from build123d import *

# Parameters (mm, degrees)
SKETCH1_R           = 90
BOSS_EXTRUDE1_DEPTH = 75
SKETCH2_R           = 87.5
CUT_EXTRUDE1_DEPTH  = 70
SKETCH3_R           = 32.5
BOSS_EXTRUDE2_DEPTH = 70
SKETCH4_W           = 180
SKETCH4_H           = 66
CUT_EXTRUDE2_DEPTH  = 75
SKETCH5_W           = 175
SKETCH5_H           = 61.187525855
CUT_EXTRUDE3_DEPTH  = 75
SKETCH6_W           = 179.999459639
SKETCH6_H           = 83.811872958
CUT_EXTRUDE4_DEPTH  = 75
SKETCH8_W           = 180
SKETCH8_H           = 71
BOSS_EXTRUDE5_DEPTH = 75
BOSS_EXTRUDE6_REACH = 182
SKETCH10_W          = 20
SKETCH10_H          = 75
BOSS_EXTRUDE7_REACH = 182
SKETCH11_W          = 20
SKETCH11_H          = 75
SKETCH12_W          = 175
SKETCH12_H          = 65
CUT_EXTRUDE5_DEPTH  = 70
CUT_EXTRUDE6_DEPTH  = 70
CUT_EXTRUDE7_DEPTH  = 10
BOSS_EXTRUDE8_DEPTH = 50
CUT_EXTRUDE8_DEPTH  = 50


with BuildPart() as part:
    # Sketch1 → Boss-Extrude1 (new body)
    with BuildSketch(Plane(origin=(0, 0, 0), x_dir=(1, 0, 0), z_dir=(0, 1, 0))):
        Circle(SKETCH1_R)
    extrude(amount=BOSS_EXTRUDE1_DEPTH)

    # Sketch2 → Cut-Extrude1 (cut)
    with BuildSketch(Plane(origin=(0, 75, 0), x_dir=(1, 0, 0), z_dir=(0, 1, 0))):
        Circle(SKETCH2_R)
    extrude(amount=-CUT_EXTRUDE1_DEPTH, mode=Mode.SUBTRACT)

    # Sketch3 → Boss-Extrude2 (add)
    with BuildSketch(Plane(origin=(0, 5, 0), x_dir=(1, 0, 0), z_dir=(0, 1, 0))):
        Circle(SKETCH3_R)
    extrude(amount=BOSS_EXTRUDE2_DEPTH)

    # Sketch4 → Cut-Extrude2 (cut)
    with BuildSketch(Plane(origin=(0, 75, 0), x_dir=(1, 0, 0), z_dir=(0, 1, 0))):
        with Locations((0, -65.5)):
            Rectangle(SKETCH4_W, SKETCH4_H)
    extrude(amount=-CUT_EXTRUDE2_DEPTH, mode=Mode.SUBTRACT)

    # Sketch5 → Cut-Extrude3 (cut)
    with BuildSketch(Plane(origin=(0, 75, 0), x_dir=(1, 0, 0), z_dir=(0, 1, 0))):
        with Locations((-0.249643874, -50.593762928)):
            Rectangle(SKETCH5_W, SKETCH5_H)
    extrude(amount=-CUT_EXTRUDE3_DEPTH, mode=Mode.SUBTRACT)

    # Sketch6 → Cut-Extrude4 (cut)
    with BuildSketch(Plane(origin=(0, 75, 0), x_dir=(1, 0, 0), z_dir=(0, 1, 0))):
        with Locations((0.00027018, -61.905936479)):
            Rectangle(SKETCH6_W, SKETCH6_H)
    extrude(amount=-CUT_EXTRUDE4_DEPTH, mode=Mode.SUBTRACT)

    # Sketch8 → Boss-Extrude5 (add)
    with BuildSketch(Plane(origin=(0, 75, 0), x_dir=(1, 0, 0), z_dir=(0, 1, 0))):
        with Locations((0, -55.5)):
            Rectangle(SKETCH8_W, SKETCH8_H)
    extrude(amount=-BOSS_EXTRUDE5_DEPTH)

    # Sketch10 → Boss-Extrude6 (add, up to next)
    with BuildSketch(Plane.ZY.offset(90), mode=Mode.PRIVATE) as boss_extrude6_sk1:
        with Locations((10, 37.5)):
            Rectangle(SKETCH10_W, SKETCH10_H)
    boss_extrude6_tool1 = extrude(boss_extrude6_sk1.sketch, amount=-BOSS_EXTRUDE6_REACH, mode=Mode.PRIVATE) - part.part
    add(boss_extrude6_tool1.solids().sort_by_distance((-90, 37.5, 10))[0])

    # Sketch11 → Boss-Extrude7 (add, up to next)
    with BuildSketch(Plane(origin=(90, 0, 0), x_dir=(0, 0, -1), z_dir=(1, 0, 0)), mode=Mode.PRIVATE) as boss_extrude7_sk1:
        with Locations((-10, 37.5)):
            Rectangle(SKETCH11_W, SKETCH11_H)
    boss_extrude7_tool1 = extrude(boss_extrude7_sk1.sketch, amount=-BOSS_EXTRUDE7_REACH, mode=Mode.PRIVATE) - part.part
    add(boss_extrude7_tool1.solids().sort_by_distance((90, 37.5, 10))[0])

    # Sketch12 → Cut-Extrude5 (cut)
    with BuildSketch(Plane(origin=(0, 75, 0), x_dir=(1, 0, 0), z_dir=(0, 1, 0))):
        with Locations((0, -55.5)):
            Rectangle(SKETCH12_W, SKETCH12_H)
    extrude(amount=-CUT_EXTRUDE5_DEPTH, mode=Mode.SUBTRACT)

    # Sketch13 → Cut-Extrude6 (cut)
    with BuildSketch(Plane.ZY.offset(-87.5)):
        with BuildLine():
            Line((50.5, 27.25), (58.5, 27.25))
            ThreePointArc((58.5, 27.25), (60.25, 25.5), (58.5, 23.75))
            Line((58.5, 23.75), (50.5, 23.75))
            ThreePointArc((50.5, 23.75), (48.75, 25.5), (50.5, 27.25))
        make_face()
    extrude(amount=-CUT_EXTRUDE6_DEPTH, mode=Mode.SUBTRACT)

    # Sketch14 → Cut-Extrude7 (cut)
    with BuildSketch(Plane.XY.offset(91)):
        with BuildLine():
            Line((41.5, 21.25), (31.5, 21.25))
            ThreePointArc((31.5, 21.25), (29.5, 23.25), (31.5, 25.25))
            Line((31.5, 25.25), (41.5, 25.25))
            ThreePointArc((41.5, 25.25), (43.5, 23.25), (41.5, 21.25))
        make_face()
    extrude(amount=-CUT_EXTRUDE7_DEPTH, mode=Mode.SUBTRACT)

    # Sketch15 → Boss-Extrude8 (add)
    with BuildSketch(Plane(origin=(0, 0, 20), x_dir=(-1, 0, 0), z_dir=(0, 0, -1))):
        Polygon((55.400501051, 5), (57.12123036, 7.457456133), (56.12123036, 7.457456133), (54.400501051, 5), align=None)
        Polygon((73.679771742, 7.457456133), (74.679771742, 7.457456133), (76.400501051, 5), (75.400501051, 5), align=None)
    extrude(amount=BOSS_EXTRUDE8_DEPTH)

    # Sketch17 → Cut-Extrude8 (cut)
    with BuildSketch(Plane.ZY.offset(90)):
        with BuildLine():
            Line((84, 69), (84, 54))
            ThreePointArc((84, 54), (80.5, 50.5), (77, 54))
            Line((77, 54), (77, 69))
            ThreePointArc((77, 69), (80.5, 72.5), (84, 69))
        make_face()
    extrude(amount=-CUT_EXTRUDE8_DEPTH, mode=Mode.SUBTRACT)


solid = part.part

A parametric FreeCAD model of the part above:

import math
import FreeCAD as App
import Part
import Sketcher
from FreeCAD import Vector
Q = App.Units.Quantity

doc = App.newDocument("Part")
body = doc.addObject("PartDesign::Body", "Body")

# Sketch on XZ plane
sketch1 = body.newObject("Sketcher::SketchObject", "Sketch")
sketch1.AttachmentSupport = (doc.getObject("XZ_Plane"), [""])
sketch1.MapMode = "FlatFace"
sketch1.addGeometry(Part.Circle(Vector(0, 0, 0), Vector(0, 0, 1), 90), False)
sketch1.addConstraint(Sketcher.Constraint("Coincident", 0, 3, -1, 1))
sketch1.addConstraint(Sketcher.Constraint("Diameter", 0, Q("180 mm")))
pad1 = body.newObject("PartDesign::Pad", "Pad")
pad1.Profile = sketch1
pad1.Length = 75
pad1.Reversed = True

# Sketch on XZ plane
sketch2 = body.newObject("Sketcher::SketchObject", "Sketch001")
sketch2.AttachmentSupport = (doc.getObject("XZ_Plane"), [""])
sketch2.MapMode = "FlatFace"
sketch2.AttachmentOffset = App.Placement(Vector(0, 0, -75), App.Rotation())
sketch2.addGeometry(Part.Circle(Vector(0, 0, 0), Vector(0, 0, 1), 87.5), False)
sketch2.addConstraint(Sketcher.Constraint("Coincident", 0, 3, -1, 1))
sketch2.addConstraint(Sketcher.Constraint("Diameter", 0, Q("175 mm")))
pocket1 = body.newObject("PartDesign::Pocket", "Pocket")
pocket1.Profile = sketch2
pocket1.Length = 70
pocket1.Reversed = True

# Sketch on XZ plane
sketch3 = body.newObject("Sketcher::SketchObject", "Sketch002")
sketch3.AttachmentSupport = (doc.getObject("XZ_Plane"), [""])
sketch3.MapMode = "FlatFace"
sketch3.AttachmentOffset = App.Placement(Vector(0, 0, -5), App.Rotation())
sketch3.addGeometry(Part.Circle(Vector(0, 0, 0), Vector(0, 0, 1), 32.5), False)
sketch3.addConstraint(Sketcher.Constraint("Coincident", 0, 3, -1, 1))
sketch3.addConstraint(Sketcher.Constraint("Diameter", 0, Q("65 mm")))
pad2 = body.newObject("PartDesign::Pad", "Pad001")
pad2.Profile = sketch3
pad2.Length = 70
pad2.Reversed = True

# Sketch on XZ plane
sketch4 = body.newObject("Sketcher::SketchObject", "Sketch003")
sketch4.AttachmentSupport = (doc.getObject("XZ_Plane"), [""])
sketch4.MapMode = "FlatFace"
sketch4.AttachmentOffset = App.Placement(Vector(0, 0, -75), App.Rotation())
sketch4.addGeometry(Part.LineSegment(Vector(-90, 32.5, 0), Vector(-90, 98.5, 0)), False)
sketch4.addGeometry(Part.LineSegment(Vector(-90, 98.5, 0), Vector(90, 98.5, 0)), False)
sketch4.addGeometry(Part.LineSegment(Vector(90, 98.5, 0), Vector(90, 32.5, 0)), False)
sketch4.addGeometry(Part.LineSegment(Vector(90, 32.5, 0), Vector(-90, 32.5, 0)), False)
sketch4.addConstraint(Sketcher.Constraint("Coincident", 0, 2, 1, 1))
sketch4.addConstraint(Sketcher.Constraint("Coincident", 1, 2, 2, 1))
sketch4.addConstraint(Sketcher.Constraint("Coincident", 2, 2, 3, 1))
sketch4.addConstraint(Sketcher.Constraint("Coincident", 3, 2, 0, 1))
sketch4.addConstraint(Sketcher.Constraint("Vertical", 0))
sketch4.addConstraint(Sketcher.Constraint("Horizontal", 1))
sketch4.addConstraint(Sketcher.Constraint("Vertical", 2))
sketch4.addConstraint(Sketcher.Constraint("Horizontal", 3))
sketch4.addConstraint(Sketcher.Constraint("DistanceX", 1, 1, 1, 2, Q("180 mm")))
sketch4.addConstraint(Sketcher.Constraint("DistanceY", 0, 1, 0, 2, Q("66 mm")))
sketch4.addConstraint(Sketcher.Constraint("DistanceX", 0, 2, -1, 1, Q("90 mm")))
sketch4.addConstraint(Sketcher.Constraint("DistanceY", -1, 1, 0, 2, Q("98.5 mm")))
pocket2 = body.newObject("PartDesign::Pocket", "Pocket001")
pocket2.Profile = sketch4
pocket2.Length = 75
pocket2.Reversed = True

# Sketch on XZ plane
sketch5 = body.newObject("Sketcher::SketchObject", "Sketch004")
sketch5.AttachmentSupport = (doc.getObject("XZ_Plane"), [""])
sketch5.MapMode = "FlatFace"
sketch5.AttachmentOffset = App.Placement(Vector(0, 0, -75), App.Rotation())
sketch5.addGeometry(Part.LineSegment(Vector(-87.749644, 20, 0), Vector(-87.749644, 81.187526, 0)), False)
sketch5.addGeometry(Part.LineSegment(Vector(-87.749644, 81.187526, 0), Vector(87.250356, 81.187526, 0)), False)
sketch5.addGeometry(Part.LineSegment(Vector(87.250356, 81.187526, 0), Vector(87.250356, 20, 0)), False)
sketch5.addGeometry(Part.LineSegment(Vector(87.250356, 20, 0), Vector(-87.749644, 20, 0)), False)
sketch5.addConstraint(Sketcher.Constraint("Coincident", 0, 2, 1, 1))
sketch5.addConstraint(Sketcher.Constraint("Coincident", 1, 2, 2, 1))
sketch5.addConstraint(Sketcher.Constraint("Coincident", 2, 2, 3, 1))
sketch5.addConstraint(Sketcher.Constraint("Coincident", 3, 2, 0, 1))
sketch5.addConstraint(Sketcher.Constraint("Vertical", 0))
sketch5.addConstraint(Sketcher.Constraint("Horizontal", 1))
sketch5.addConstraint(Sketcher.Constraint("Vertical", 2))
sketch5.addConstraint(Sketcher.Constraint("Horizontal", 3))
sketch5.addConstraint(Sketcher.Constraint("DistanceX", 1, 1, 1, 2, Q("175 mm")))
sketch5.addConstraint(Sketcher.Constraint("DistanceY", -1, 1, 2, 2, Q("20 mm")))
sketch5.addConstraint(Sketcher.Constraint("DistanceY", 0, 1, 0, 2, Q("61.187526 mm")))
sketch5.addConstraint(Sketcher.Constraint("DistanceX", 0, 2, -1, 1, Q("87.749644 mm")))
pocket3 = body.newObject("PartDesign::Pocket", "Pocket002")
pocket3.Profile = sketch5
pocket3.Length = 75
pocket3.Reversed = True

# Sketch on XZ plane
sketch6 = body.newObject("Sketcher::SketchObject", "Sketch005")
sketch6.AttachmentSupport = (doc.getObject("XZ_Plane"), [""])
sketch6.MapMode = "FlatFace"
sketch6.AttachmentOffset = App.Placement(Vector(0, 0, -75), App.Rotation())
sketch6.addGeometry(Part.LineSegment(Vector(-89.99946, 20, 0), Vector(-89.99946, 103.811873, 0)), False)
sketch6.addGeometry(Part.LineSegment(Vector(-89.99946, 103.811873, 0), Vector(90, 103.811873, 0)), False)
sketch6.addGeometry(Part.LineSegment(Vector(90, 103.811873, 0), Vector(90, 20, 0)), False)
sketch6.addGeometry(Part.LineSegment(Vector(90, 20, 0), Vector(-89.99946, 20, 0)), False)
sketch6.addConstraint(Sketcher.Constraint("Coincident", 0, 2, 1, 1))
sketch6.addConstraint(Sketcher.Constraint("Coincident", 1, 2, 2, 1))
sketch6.addConstraint(Sketcher.Constraint("Coincident", 2, 2, 3, 1))
sketch6.addConstraint(Sketcher.Constraint("Coincident", 3, 2, 0, 1))
sketch6.addConstraint(Sketcher.Constraint("Vertical", 0))
sketch6.addConstraint(Sketcher.Constraint("Horizontal", 1))
sketch6.addConstraint(Sketcher.Constraint("Vertical", 2))
sketch6.addConstraint(Sketcher.Constraint("Horizontal", 3))
sketch6.addConstraint(Sketcher.Constraint("DistanceX", -1, 1, 1, 2, Q("90 mm")))
sketch6.addConstraint(Sketcher.Constraint("DistanceY", -1, 1, 2, 2, Q("20 mm")))
sketch6.addConstraint(Sketcher.Constraint("DistanceX", 1, 1, 1, 2, Q("179.99946 mm")))
sketch6.addConstraint(Sketcher.Constraint("DistanceY", 0, 1, 0, 2, Q("83.811873 mm")))
pocket4 = body.newObject("PartDesign::Pocket", "Pocket003")
pocket4.Profile = sketch6
pocket4.Length = 75
pocket4.Reversed = True

# Sketch on XZ plane
sketch7 = body.newObject("Sketcher::SketchObject", "Sketch006")
sketch7.AttachmentSupport = (doc.getObject("XZ_Plane"), [""])
sketch7.MapMode = "FlatFace"
sketch7.AttachmentOffset = App.Placement(Vector(0, 0, -75), App.Rotation())
sketch7.addGeometry(Part.LineSegment(Vector(-90, 20, 0), Vector(-90, 91, 0)), False)
sketch7.addGeometry(Part.LineSegment(Vector(-90, 91, 0), Vector(90, 91, 0)), False)
sketch7.addGeometry(Part.LineSegment(Vector(90, 91, 0), Vector(90, 20, 0)), False)
sketch7.addGeometry(Part.LineSegment(Vector(90, 20, 0), Vector(-90, 20, 0)), False)
sketch7.addConstraint(Sketcher.Constraint("Coincident", 0, 2, 1, 1))
sketch7.addConstraint(Sketcher.Constraint("Coincident", 1, 2, 2, 1))
sketch7.addConstraint(Sketcher.Constraint("Coincident", 2, 2, 3, 1))
sketch7.addConstraint(Sketcher.Constraint("Coincident", 3, 2, 0, 1))
sketch7.addConstraint(Sketcher.Constraint("Vertical", 0))
sketch7.addConstraint(Sketcher.Constraint("Horizontal", 1))
sketch7.addConstraint(Sketcher.Constraint("Vertical", 2))
sketch7.addConstraint(Sketcher.Constraint("Horizontal", 3))
sketch7.addConstraint(Sketcher.Constraint("DistanceX", 1, 1, 1, 2, Q("180 mm")))
sketch7.addConstraint(Sketcher.Constraint("DistanceY", 0, 1, 0, 2, Q("71 mm")))
sketch7.addConstraint(Sketcher.Constraint("DistanceX", 0, 2, -1, 1, Q("90 mm")))
sketch7.addConstraint(Sketcher.Constraint("DistanceY", -1, 1, 0, 2, Q("91 mm")))
pad3 = body.newObject("PartDesign::Pad", "Pad002")
pad3.Profile = sketch7
pad3.Length = 75

# Sketch on YZ plane
sketch8 = body.newObject("Sketcher::SketchObject", "Sketch007")
sketch8.AttachmentSupport = (doc.getObject("YZ_Plane"), [""])
sketch8.MapMode = "FlatFace"
sketch8.AttachmentOffset = App.Placement(Vector(0, 0, -90), App.Rotation())
sketch8.addGeometry(Part.LineSegment(Vector(75, 0, 0), Vector(0, 0, 0)), False)
sketch8.addGeometry(Part.LineSegment(Vector(0, 0, 0), Vector(0, 20, 0)), False)
sketch8.addGeometry(Part.LineSegment(Vector(0, 20, 0), Vector(75, 20, 0)), False)
sketch8.addGeometry(Part.LineSegment(Vector(75, 20, 0), Vector(75, 0, 0)), False)
sketch8.addConstraint(Sketcher.Constraint("Coincident", 0, 2, 1, 1))
sketch8.addConstraint(Sketcher.Constraint("Coincident", 1, 2, 2, 1))
sketch8.addConstraint(Sketcher.Constraint("Coincident", 2, 2, 3, 1))
sketch8.addConstraint(Sketcher.Constraint("Coincident", 3, 2, 0, 1))
sketch8.addConstraint(Sketcher.Constraint("Horizontal", 0))
sketch8.addConstraint(Sketcher.Constraint("Vertical", 1))
sketch8.addConstraint(Sketcher.Constraint("Horizontal", 2))
sketch8.addConstraint(Sketcher.Constraint("Vertical", 3))
sketch8.addConstraint(Sketcher.Constraint("Coincident", 0, 2, -1, 1))
sketch8.addConstraint(Sketcher.Constraint("DistanceX", 0, 2, 0, 1, Q("75 mm")))
sketch8.addConstraint(Sketcher.Constraint("DistanceY", 1, 1, 1, 2, Q("20 mm")))
pad4 = body.newObject("PartDesign::Pad", "Pad003")
pad4.Profile = sketch8
pad4.Length = 2.250356

# Sketch on YZ plane
sketch9 = body.newObject("Sketcher::SketchObject", "Sketch008")
sketch9.AttachmentSupport = (doc.getObject("YZ_Plane"), [""])
sketch9.MapMode = "FlatFace"
sketch9.AttachmentOffset = App.Placement(Vector(0, 0, 90), App.Rotation())
sketch9.addGeometry(Part.LineSegment(Vector(75, 20, 0), Vector(0, 20, 0)), False)
sketch9.addGeometry(Part.LineSegment(Vector(0, 20, 0), Vector(0, 0, 0)), False)
sketch9.addGeometry(Part.LineSegment(Vector(0, 0, 0), Vector(75, 0, 0)), False)
sketch9.addGeometry(Part.LineSegment(Vector(75, 0, 0), Vector(75, 20, 0)), False)
sketch9.addConstraint(Sketcher.Constraint("Coincident", 0, 2, 1, 1))
sketch9.addConstraint(Sketcher.Constraint("Coincident", 1, 2, 2, 1))
sketch9.addConstraint(Sketcher.Constraint("Coincident", 2, 2, 3, 1))
sketch9.addConstraint(Sketcher.Constraint("Coincident", 3, 2, 0, 1))
sketch9.addConstraint(Sketcher.Constraint("Horizontal", 0))
sketch9.addConstraint(Sketcher.Constraint("Vertical", 1))
sketch9.addConstraint(Sketcher.Constraint("Horizontal", 2))
sketch9.addConstraint(Sketcher.Constraint("Vertical", 3))
sketch9.addConstraint(Sketcher.Constraint("Coincident", 1, 2, -1, 1))
sketch9.addConstraint(Sketcher.Constraint("DistanceX", 0, 2, 0, 1, Q("75 mm")))
sketch9.addConstraint(Sketcher.Constraint("DistanceY", 1, 2, 1, 1, Q("20 mm")))
pad5 = body.newObject("PartDesign::Pad", "Pad004")
pad5.Profile = sketch9
pad5.Length = 2.250356
pad5.Reversed = True

# Sketch on XZ plane
sketch10 = body.newObject("Sketcher::SketchObject", "Sketch009")
sketch10.AttachmentSupport = (doc.getObject("XZ_Plane"), [""])
sketch10.MapMode = "FlatFace"
sketch10.AttachmentOffset = App.Placement(Vector(0, 0, -75), App.Rotation())
sketch10.addGeometry(Part.LineSegment(Vector(-87.5, 23, 0), Vector(-87.5, 88, 0)), False)
sketch10.addGeometry(Part.LineSegment(Vector(-87.5, 88, 0), Vector(87.5, 88, 0)), False)
sketch10.addGeometry(Part.LineSegment(Vector(87.5, 88, 0), Vector(87.5, 23, 0)), False)
sketch10.addGeometry(Part.LineSegment(Vector(87.5, 23, 0), Vector(-87.5, 23, 0)), False)
sketch10.addConstraint(Sketcher.Constraint("Coincident", 0, 2, 1, 1))
sketch10.addConstraint(Sketcher.Constraint("Coincident", 1, 2, 2, 1))
sketch10.addConstraint(Sketcher.Constraint("Coincident", 2, 2, 3, 1))
sketch10.addConstraint(Sketcher.Constraint("Coincident", 3, 2, 0, 1))
sketch10.addConstraint(Sketcher.Constraint("Vertical", 0))
sketch10.addConstraint(Sketcher.Constraint("Horizontal", 1))
sketch10.addConstraint(Sketcher.Constraint("Vertical", 2))
sketch10.addConstraint(Sketcher.Constraint("Horizontal", 3))
sketch10.addConstraint(Sketcher.Constraint("DistanceX", 1, 1, 1, 2, Q("175 mm")))
sketch10.addConstraint(Sketcher.Constraint("DistanceY", 0, 1, 0, 2, Q("65 mm")))
sketch10.addConstraint(Sketcher.Constraint("DistanceY", -1, 1, 0, 2, Q("88 mm")))
sketch10.addConstraint(Sketcher.Constraint("DistanceX", 0, 2, -1, 1, Q("87.5 mm")))
pocket5 = body.newObject("PartDesign::Pocket", "Pocket004")
pocket5.Profile = sketch10
pocket5.Length = 70
pocket5.Reversed = True

# Sketch on YZ plane
sketch11 = body.newObject("Sketcher::SketchObject", "Sketch010")
sketch11.AttachmentSupport = (doc.getObject("YZ_Plane"), [""])
sketch11.MapMode = "FlatFace"
sketch11.AttachmentOffset = App.Placement(Vector(0, 0, 87.5), App.Rotation())
sketch11.addGeometry(Part.LineSegment(Vector(27.25, 58.5, 0), Vector(27.25, 50.5, 0)), False)
sketch11.addGeometry(Part.ArcOfCircle(Part.Circle(Vector(25.5, 50.5, 0), Vector(0, 0, 1), 1.75), math.radians(180), math.radians(360)), False)
sketch11.addGeometry(Part.LineSegment(Vector(23.75, 50.5, 0), Vector(23.75, 58.5, 0)), False)
sketch11.addGeometry(Part.ArcOfCircle(Part.Circle(Vector(25.5, 58.5, 0), Vector(0, 0, 1), 1.75), math.radians(0), math.radians(180)), False)
sketch11.addConstraint(Sketcher.Constraint("Tangent", 0, 2, 1, 2))
sketch11.addConstraint(Sketcher.Constraint("Tangent", 1, 1, 2, 1))
sketch11.addConstraint(Sketcher.Constraint("Tangent", 2, 2, 3, 2))
sketch11.addConstraint(Sketcher.Constraint("Tangent", 3, 1, 0, 1))
sketch11.addConstraint(Sketcher.Constraint("Vertical", 0))
sketch11.addConstraint(Sketcher.Constraint("Vertical", 2))
sketch11.addConstraint(Sketcher.Constraint("DistanceY", 0, 2, 0, 1, Q("8 mm")))
sketch11.addConstraint(Sketcher.Constraint("Radius", 1, Q("1.75 mm")))
sketch11.addConstraint(Sketcher.Constraint("DistanceX", -1, 1, 1, 3, Q("25.5 mm")))
sketch11.addConstraint(Sketcher.Constraint("DistanceY", -1, 1, 1, 3, Q("50.5 mm")))
pocket6 = body.newObject("PartDesign::Pocket", "Pocket005")
pocket6.Profile = sketch11
pocket6.Length = 70
pocket6.Reversed = True

# Sketch on XY plane
sketch12 = body.newObject("Sketcher::SketchObject", "Sketch011")
sketch12.AttachmentSupport = (doc.getObject("XY_Plane"), [""])
sketch12.MapMode = "FlatFace"
sketch12.AttachmentOffset = App.Placement(Vector(0, 0, 91), App.Rotation())
sketch12.addGeometry(Part.LineSegment(Vector(31.5, 21.25, 0), Vector(41.5, 21.25, 0)), False)
sketch12.addGeometry(Part.ArcOfCircle(Part.Circle(Vector(41.5, 23.25, 0), Vector(0, 0, 1), 2), math.radians(-90), math.radians(90)), False)
sketch12.addGeometry(Part.LineSegment(Vector(41.5, 25.25, 0), Vector(31.5, 25.25, 0)), False)
sketch12.addGeometry(Part.ArcOfCircle(Part.Circle(Vector(31.5, 23.25, 0), Vector(0, 0, 1), 2), math.radians(90), math.radians(270)), False)
sketch12.addConstraint(Sketcher.Constraint("Tangent", 0, 2, 1, 1))
sketch12.addConstraint(Sketcher.Constraint("Tangent", 1, 2, 2, 1))
sketch12.addConstraint(Sketcher.Constraint("Tangent", 2, 2, 3, 1))
sketch12.addConstraint(Sketcher.Constraint("Tangent", 3, 2, 0, 1))
sketch12.addConstraint(Sketcher.Constraint("Horizontal", 0))
sketch12.addConstraint(Sketcher.Constraint("Horizontal", 2))
sketch12.addConstraint(Sketcher.Constraint("Radius", 1, Q("2 mm")))
sketch12.addConstraint(Sketcher.Constraint("DistanceX", 0, 1, 0, 2, Q("10 mm")))
sketch12.addConstraint(Sketcher.Constraint("DistanceX", -1, 1, 1, 3, Q("41.5 mm")))
sketch12.addConstraint(Sketcher.Constraint("DistanceY", -1, 1, 1, 3, Q("23.25 mm")))
pocket7 = body.newObject("PartDesign::Pocket", "Pocket006")
pocket7.Profile = sketch12
pocket7.Length = 10

# Sketch on XY plane
sketch13 = body.newObject("Sketcher::SketchObject", "Sketch012")
sketch13.AttachmentSupport = (doc.getObject("XY_Plane"), [""])
sketch13.MapMode = "FlatFace"
sketch13.AttachmentOffset = App.Placement(Vector(0, 0, 20), App.Rotation())
sketch13.addGeometry(Part.LineSegment(Vector(-55.400501, 5, 0), Vector(-57.12123, 7.457456, 0)), False)
sketch13.addGeometry(Part.LineSegment(Vector(-57.12123, 7.457456, 0), Vector(-56.12123, 7.457456, 0)), False)
sketch13.addGeometry(Part.LineSegment(Vector(-56.12123, 7.457456, 0), Vector(-54.400501, 5, 0)), False)
sketch13.addGeometry(Part.LineSegment(Vector(-54.400501, 5, 0), Vector(-55.400501, 5, 0)), False)
sketch13.addGeometry(Part.LineSegment(Vector(-74.679772, 7.457456, 0), Vector(-73.679772, 7.457456, 0)), False)
sketch13.addGeometry(Part.LineSegment(Vector(-73.679772, 7.457456, 0), Vector(-75.400501, 5, 0)), False)
sketch13.addGeometry(Part.LineSegment(Vector(-75.400501, 5, 0), Vector(-76.400501, 5, 0)), False)
sketch13.addGeometry(Part.LineSegment(Vector(-76.400501, 5, 0), Vector(-74.679772, 7.457456, 0)), False)
sketch13.addConstraint(Sketcher.Constraint("Coincident", 0, 2, 1, 1))
sketch13.addConstraint(Sketcher.Constraint("Coincident", 1, 2, 2, 1))
sketch13.addConstraint(Sketcher.Constraint("Coincident", 2, 2, 3, 1))
sketch13.addConstraint(Sketcher.Constraint("Coincident", 3, 2, 0, 1))
sketch13.addConstraint(Sketcher.Constraint("Coincident", 4, 2, 5, 1))
sketch13.addConstraint(Sketcher.Constraint("Coincident", 5, 2, 6, 1))
sketch13.addConstraint(Sketcher.Constraint("Coincident", 6, 2, 7, 1))
sketch13.addConstraint(Sketcher.Constraint("Coincident", 7, 2, 4, 1))
sketch13.addConstraint(Sketcher.Constraint("Horizontal", 1))
sketch13.addConstraint(Sketcher.Constraint("Horizontal", 3))
sketch13.addConstraint(Sketcher.Constraint("Horizontal", 4))
sketch13.addConstraint(Sketcher.Constraint("Horizontal", 6))
sketch13.addConstraint(Sketcher.Constraint("Parallel", 0, 2))
sketch13.addConstraint(Sketcher.Constraint("Parallel", 5, 7))
sketch13.addConstraint(Sketcher.Constraint("Horizontal", 1, 2, 4, 2))
sketch13.addConstraint(Sketcher.Constraint("Horizontal", 3, 2, 5, 2))
sketch13.addConstraint(Sketcher.Constraint("Equal", 3, 4))
sketch13.addConstraint(Sketcher.Constraint("Equal", 2, 5))
sketch13.addConstraint(Sketcher.Constraint("DistanceX", 1, 1, 1, 2, Q("1 mm")))
sketch13.addConstraint(Sketcher.Constraint("Angle", 0, Q("125 deg")))
sketch13.addConstraint(Sketcher.Constraint("Distance", 0, Q("3 mm")))
sketch13.addConstraint(Sketcher.Constraint("DistanceY", -1, 1, 2, 2, Q("5 mm")))
sketch13.addConstraint(Sketcher.Constraint("DistanceX", 5, 2, 3, 2, Q("20 mm")))
sketch13.addConstraint(Sketcher.Constraint("DistanceX", 2, 2, -1, 1, Q("54.400501 mm")))
pad6 = body.newObject("PartDesign::Pad", "Pad005")
pad6.Profile = sketch13
pad6.Length = 50
pad6.Reversed = True

# Sketch on YZ plane
sketch14 = body.newObject("Sketcher::SketchObject", "Sketch013")
sketch14.AttachmentSupport = (doc.getObject("YZ_Plane"), [""])
sketch14.MapMode = "FlatFace"
sketch14.AttachmentOffset = App.Placement(Vector(0, 0, -90), App.Rotation())
sketch14.addGeometry(Part.LineSegment(Vector(54, 84, 0), Vector(69, 84, 0)), False)
sketch14.addGeometry(Part.ArcOfCircle(Part.Circle(Vector(69, 80.5, 0), Vector(0, 0, 1), 3.5), math.radians(-90), math.radians(90)), False)
sketch14.addGeometry(Part.LineSegment(Vector(69, 77, 0), Vector(54, 77, 0)), False)
sketch14.addGeometry(Part.ArcOfCircle(Part.Circle(Vector(54, 80.5, 0), Vector(0, 0, 1), 3.5), math.radians(90), math.radians(270)), False)
sketch14.addConstraint(Sketcher.Constraint("Tangent", 0, 2, 1, 2))
sketch14.addConstraint(Sketcher.Constraint("Tangent", 1, 1, 2, 1))
sketch14.addConstraint(Sketcher.Constraint("Tangent", 2, 2, 3, 2))
sketch14.addConstraint(Sketcher.Constraint("Tangent", 3, 1, 0, 1))
sketch14.addConstraint(Sketcher.Constraint("Horizontal", 0))
sketch14.addConstraint(Sketcher.Constraint("Horizontal", 2))
sketch14.addConstraint(Sketcher.Constraint("Radius", 1, Q("3.5 mm")))
sketch14.addConstraint(Sketcher.Constraint("DistanceX", 0, 1, 0, 2, Q("15 mm")))
sketch14.addConstraint(Sketcher.Constraint("DistanceX", -1, 1, 1, 3, Q("69 mm")))
sketch14.addConstraint(Sketcher.Constraint("DistanceY", -1, 1, 0, 2, Q("84 mm")))
pocket8 = body.newObject("PartDesign::Pocket", "Pocket007")
pocket8.Profile = sketch14
pocket8.Length = 50
pocket8.Reversed = True

doc.recompute()
